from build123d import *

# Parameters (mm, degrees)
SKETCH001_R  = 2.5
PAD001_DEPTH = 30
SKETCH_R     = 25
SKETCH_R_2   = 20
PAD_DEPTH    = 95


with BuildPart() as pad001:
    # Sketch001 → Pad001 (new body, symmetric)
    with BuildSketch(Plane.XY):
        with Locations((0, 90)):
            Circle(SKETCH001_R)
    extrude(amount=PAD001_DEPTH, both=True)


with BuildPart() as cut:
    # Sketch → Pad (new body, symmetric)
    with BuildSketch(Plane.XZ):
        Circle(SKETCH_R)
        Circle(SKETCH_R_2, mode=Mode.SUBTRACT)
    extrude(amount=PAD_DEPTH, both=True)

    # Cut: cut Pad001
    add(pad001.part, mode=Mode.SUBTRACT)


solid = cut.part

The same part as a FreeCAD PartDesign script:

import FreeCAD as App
import Part
import Sketcher

V = App.Vector

doc = App.newDocument("Part")
body = doc.addObject("PartDesign::Body", "Body")

# Sketch on XY plane
sketch1 = body.newObject("Sketcher::SketchObject", "Sketch")
sketch1.AttachmentSupport = (doc.getObject("XY_Plane"), [""])
sketch1.MapMode = "FlatFace"
sketch1.addGeometry(Part.Circle(V(0, 90, 0), V(0, 0, 1), 2.5), False)
sketch1.addConstraint(Sketcher.Constraint("PointOnObject", 0, 3, -2))
sketch1.addConstraint(Sketcher.Constraint("Diameter", 0, 5.0))
sketch1.addConstraint(Sketcher.Constraint("DistanceY", -1, 1, 0, 3, 90.0))
pad1 = body.newObject("PartDesign::Pad", "Pad")
pad1.Profile = sketch1
pad1.Length = 60
pad1.Midplane = True
body2 = doc.addObject("PartDesign::Body", "Body001")

# Sketch on XZ plane
sketch2 = body2.newObject("Sketcher::SketchObject", "Sketch001")
sketch2.AttachmentSupport = (doc.getObject("XZ_Plane001"), [""])
sketch2.MapMode = "FlatFace"
sketch2.addGeometry(Part.Circle(V(0, 0, 0), V(0, 0, 1), 25), False)
sketch2.addGeometry(Part.Circle(V(0, 0, 0), V(0, 0, 1), 20), False)
sketch2.addConstraint(Sketcher.Constraint("Coincident", 0, 3, -1, 1))
sketch2.addConstraint(Sketcher.Constraint("Coincident", 1, 3, -1, 1))
sketch2.addConstraint(Sketcher.Constraint("Diameter", 0, 50.0))
sketch2.addConstraint(Sketcher.Constraint("Diameter", 1, 40.0))
pad2 = body2.newObject("PartDesign::Pad", "Pad001")
pad2.Profile = sketch2
pad2.Length = 190
pad2.Midplane = True
doc.recompute()

boolean = body2.newObject("PartDesign::Boolean", "Boolean")
boolean.Type = "Cut"
boolean.addObjects([body])

doc.recompute()
